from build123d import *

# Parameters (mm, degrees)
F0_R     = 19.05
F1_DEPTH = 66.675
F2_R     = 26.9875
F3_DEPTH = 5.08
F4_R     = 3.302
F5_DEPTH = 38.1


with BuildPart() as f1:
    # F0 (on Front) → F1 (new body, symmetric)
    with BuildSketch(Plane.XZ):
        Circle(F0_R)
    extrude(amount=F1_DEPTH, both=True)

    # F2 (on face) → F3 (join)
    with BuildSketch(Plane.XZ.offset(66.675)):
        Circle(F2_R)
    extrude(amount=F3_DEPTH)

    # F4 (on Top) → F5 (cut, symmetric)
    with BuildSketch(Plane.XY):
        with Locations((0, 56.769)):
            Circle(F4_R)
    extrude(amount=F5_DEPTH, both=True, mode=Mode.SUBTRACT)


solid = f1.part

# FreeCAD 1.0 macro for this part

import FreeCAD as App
import Part
import Sketcher

V = App.Vector
Q = App.Units.Quantity

doc = App.newDocument("Part")
body = doc.addObject("PartDesign::Body", "Body")

sketch1 = body.newObject("Sketcher::SketchObject", "Sketch")
sketch1.AttachmentSupport = (doc.getObject("XZ_Plane"), [""])
sketch1.MapMode = "FlatFace"
sketch1.addGeometry(Part.Circle(V(0, 0, 0), V(0, 0, 1), 19), False)
sketch1.addConstraint(Sketcher.Constraint("Coincident", 0, 3, -1, 1))
sketch1.addConstraint(Sketcher.Constraint("Diameter", 0, Q("1.5 in")))
pad1 = body.newObject("PartDesign::Pad", "Pad")
pad1.Profile = sketch1
pad1.Length = Q("5.25 in")
pad1.Midplane = True

sketch2 = body.newObject("Sketcher::SketchObject", "Sketch001")
sketch2.AttachmentSupport = (doc.getObject("XZ_Plane"), [""])
sketch2.MapMode = "FlatFace"
sketch2.AttachmentOffset = App.Placement(V(0, 0, 2.625 * 25.4), App.Rotation())
sketch2.addGeometry(Part.Circle(V(0, 0, 0), V(0, 0, 1), 27), False)
sketch2.addConstraint(Sketcher.Constraint("Coincident", 0, 3, -1, 1))
sketch2.addConstraint(Sketcher.Constraint("Diameter", 0, Q("2.125 in")))
pad2 = body.newObject("PartDesign::Pad", "Pad001")
pad2.Profile = sketch2
pad2.Length = Q("0.2 in")

sketch3 = body.newObject("Sketcher::SketchObject", "Sketch002")
sketch3.AttachmentSupport = (doc.getObject("XY_Plane"), [""])
sketch3.MapMode = "FlatFace"
sketch3.addGeometry(Part.Circle(V(0, 56.8, 0), V(0, 0, 1), 3.3), False)
sketch3.addConstraint(Sketcher.Constraint("PointOnObject", 0, 3, -2))
sketch3.addConstraint(Sketcher.Constraint("Diameter", 0, Q("0.26 in")))
sketch3.addConstraint(Sketcher.Constraint("DistanceY", -1, 1, 0, 3, Q("2.235 in")))
pocket1 = body.newObject("PartDesign::Pocket", "Pocket")
pocket1.Profile = sketch3
pocket1.Length = Q("3 in")
pocket1.Midplane = True

doc.recompute()
